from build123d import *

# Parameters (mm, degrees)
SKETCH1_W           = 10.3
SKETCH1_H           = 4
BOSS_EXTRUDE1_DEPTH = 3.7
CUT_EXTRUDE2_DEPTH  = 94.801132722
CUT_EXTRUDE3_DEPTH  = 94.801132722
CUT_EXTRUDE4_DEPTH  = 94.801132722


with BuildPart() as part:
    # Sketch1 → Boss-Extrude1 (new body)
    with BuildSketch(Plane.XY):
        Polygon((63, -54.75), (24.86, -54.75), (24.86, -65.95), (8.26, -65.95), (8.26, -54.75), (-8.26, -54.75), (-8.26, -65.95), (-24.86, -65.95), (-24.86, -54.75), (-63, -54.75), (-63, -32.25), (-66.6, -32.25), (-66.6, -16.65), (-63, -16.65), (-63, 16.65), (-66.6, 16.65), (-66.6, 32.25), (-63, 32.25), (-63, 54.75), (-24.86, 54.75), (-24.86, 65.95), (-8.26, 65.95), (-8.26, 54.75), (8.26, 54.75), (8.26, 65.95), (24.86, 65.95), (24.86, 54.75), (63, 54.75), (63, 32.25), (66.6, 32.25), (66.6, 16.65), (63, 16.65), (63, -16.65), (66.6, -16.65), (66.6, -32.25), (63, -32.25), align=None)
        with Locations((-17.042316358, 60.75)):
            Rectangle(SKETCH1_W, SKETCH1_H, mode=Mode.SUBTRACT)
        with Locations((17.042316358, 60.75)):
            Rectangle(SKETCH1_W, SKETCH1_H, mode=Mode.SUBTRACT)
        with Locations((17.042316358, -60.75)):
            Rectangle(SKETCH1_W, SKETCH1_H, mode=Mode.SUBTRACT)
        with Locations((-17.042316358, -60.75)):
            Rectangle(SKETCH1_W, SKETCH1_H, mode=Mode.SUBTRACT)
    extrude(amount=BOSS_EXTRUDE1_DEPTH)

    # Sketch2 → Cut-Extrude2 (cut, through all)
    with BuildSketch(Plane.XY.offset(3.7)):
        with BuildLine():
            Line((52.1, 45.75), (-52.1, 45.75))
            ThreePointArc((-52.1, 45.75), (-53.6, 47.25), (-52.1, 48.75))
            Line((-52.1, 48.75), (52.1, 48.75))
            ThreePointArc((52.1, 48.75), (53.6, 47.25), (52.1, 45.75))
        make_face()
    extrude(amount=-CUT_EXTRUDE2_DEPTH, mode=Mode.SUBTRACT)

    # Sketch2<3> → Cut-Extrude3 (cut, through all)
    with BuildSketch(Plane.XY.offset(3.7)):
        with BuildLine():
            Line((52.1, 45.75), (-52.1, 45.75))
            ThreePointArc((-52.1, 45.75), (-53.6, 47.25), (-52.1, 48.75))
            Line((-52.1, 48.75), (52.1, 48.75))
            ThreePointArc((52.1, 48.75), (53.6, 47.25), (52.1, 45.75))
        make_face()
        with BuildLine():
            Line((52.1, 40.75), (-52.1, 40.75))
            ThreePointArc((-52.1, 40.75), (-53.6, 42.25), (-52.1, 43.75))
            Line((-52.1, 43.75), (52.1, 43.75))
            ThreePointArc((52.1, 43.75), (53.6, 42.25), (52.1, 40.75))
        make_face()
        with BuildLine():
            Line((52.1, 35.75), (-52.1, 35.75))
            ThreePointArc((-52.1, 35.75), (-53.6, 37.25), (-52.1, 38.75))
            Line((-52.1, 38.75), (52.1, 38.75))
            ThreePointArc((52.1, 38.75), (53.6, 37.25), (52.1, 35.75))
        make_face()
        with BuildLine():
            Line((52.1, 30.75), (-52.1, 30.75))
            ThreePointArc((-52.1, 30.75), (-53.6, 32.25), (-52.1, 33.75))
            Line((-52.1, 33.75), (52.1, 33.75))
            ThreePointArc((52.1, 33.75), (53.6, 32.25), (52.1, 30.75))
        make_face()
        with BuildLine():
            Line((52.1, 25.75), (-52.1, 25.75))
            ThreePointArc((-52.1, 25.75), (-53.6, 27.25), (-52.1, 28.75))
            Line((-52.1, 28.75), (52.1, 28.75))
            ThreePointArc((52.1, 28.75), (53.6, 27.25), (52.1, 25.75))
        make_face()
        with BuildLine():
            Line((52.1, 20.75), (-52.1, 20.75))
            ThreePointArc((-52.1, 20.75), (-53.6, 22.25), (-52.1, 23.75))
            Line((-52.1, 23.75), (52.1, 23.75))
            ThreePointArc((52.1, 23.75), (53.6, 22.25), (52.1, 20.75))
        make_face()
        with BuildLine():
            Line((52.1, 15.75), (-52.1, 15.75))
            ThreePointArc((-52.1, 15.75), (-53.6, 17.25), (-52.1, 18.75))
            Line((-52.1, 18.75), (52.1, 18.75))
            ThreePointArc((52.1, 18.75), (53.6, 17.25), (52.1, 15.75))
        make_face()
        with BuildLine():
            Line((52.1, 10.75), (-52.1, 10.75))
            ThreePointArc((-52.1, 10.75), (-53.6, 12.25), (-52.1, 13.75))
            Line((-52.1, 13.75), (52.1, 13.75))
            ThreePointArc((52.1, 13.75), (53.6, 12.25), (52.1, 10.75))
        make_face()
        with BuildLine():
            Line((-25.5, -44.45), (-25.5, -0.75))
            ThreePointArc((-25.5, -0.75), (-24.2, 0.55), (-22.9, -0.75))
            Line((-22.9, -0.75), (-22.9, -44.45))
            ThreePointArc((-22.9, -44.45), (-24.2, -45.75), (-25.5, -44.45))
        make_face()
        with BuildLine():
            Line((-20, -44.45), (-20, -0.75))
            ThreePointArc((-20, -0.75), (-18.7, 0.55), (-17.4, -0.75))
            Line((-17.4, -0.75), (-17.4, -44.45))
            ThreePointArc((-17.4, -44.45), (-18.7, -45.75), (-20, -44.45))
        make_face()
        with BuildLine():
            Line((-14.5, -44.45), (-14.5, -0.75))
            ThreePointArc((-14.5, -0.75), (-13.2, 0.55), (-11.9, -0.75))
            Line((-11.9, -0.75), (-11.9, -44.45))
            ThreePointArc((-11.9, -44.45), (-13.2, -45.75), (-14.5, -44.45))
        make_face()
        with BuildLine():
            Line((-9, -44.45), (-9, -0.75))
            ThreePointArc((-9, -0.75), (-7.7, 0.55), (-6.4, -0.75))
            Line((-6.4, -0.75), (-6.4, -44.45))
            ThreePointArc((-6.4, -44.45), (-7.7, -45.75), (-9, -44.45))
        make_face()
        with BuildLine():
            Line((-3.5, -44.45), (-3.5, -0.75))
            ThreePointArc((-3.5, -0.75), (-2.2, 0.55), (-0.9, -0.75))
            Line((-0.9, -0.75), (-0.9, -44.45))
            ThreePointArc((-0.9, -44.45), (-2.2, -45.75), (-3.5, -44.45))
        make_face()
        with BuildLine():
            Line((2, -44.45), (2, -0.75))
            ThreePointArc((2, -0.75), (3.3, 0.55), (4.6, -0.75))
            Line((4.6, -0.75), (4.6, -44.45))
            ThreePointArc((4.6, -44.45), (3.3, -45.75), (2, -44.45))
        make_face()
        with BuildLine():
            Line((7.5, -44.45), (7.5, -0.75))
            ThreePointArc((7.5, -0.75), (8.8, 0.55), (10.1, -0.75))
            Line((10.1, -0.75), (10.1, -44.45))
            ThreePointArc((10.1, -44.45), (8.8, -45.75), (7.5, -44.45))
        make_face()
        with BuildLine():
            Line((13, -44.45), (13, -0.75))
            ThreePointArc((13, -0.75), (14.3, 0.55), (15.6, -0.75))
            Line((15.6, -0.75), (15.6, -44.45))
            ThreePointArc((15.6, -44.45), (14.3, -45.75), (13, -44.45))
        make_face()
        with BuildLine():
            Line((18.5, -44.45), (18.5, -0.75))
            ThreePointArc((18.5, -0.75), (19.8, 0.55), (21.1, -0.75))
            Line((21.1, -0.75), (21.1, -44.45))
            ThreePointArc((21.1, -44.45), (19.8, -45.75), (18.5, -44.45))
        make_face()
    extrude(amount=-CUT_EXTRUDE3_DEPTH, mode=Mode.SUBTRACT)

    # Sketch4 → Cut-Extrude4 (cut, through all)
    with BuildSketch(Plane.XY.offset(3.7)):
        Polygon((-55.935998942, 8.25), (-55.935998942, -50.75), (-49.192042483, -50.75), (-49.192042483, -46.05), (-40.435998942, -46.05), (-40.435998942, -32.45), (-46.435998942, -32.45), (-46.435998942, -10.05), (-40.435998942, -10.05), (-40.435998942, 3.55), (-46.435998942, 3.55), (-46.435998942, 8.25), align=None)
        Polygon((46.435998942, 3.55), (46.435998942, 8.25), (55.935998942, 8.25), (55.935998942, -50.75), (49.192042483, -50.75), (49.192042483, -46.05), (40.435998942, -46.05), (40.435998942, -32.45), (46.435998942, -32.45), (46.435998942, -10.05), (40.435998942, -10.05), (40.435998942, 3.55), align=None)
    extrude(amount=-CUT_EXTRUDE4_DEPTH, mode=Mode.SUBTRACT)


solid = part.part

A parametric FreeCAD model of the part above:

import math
import FreeCAD as App
import Part
import Sketcher


def add_polygon(sketch, points):
    """Adds a closed chain of lines whose ends are joined by coincident constraints."""
    first, n = sketch.GeometryCount, len(points)
    for a, b in zip(points, points[1:] + points[:1]):
        sketch.addGeometry(Part.LineSegment(App.Vector(*a, 0), App.Vector(*b, 0)), False)
    for i in range(n):
        sketch.addConstraint(Sketcher.Constraint("Coincident", first + i, 2, first + (i + 1) % n, 1))

doc = App.newDocument("Part")
body = doc.addObject("PartDesign::Body", "Body")

sketch1 = doc.addObject("Sketcher::SketchObject", "Sketch")
body.addObject(sketch1)
sketch1.AttachmentSupport = (doc.XY_Plane, [""])
sketch1.MapMode = "FlatFace"
add_polygon(sketch1, [(24.9, -54.8), (63, -54.8), (63, -32.2), (66.6, -32.2), (66.6, -16.6), (63, -16.6), (63, 16.6), (66.6, 16.6), (66.6, 32.2), (63, 32.2), (63, 54.8), (24.9, 54.8), (24.9, 66), (8.3, 66), (8.3, 54.8), (-8.3, 54.8), (-8.3, 66), (-24.9, 66), (-24.9, 54.8), (-63, 54.8), (-63, 32.2), (-66.6, 32.2), (-66.6, 16.6), (-63, 16.6), (-63, -16.6), (-66.6, -16.6), (-66.6, -32.2), (-63, -32.2), (-63, -54.8), (-24.9, -54.8), (-24.9, -66), (-8.3, -66), (-8.3, -54.8), (8.3, -54.8), (8.3, -66), (24.9, -66)])
add_polygon(sketch1, [(11.9, -62.8), (11.9, -58.8), (22.2, -58.8), (22.2, -62.8)])
add_polygon(sketch1, [(-22.2, -62.8), (-22.2, -58.8), (-11.9, -58.8), (-11.9, -62.8)])
add_polygon(sketch1, [(11.9, 58.8), (11.9, 62.8), (22.2, 62.8), (22.2, 58.8)])
add_polygon(sketch1, [(-22.2, 58.8), (-22.2, 62.8), (-11.9, 62.8), (-11.9, 58.8)])
sketch1.addConstraint([
    Sketcher.Constraint("Horizontal", 0),
    Sketcher.Constraint("Vertical", 1),
    Sketcher.Constraint("Horizontal", 2),
    Sketcher.Constraint("Vertical", 3),
    Sketcher.Constraint("Horizontal", 4),
    Sketcher.Constraint("Vertical", 5),
    Sketcher.Constraint("Horizontal", 6),
    Sketcher.Constraint("Vertical", 7),
    Sketcher.Constraint("Horizontal", 8),
    Sketcher.Constraint("Vertical", 9),
    Sketcher.Constraint("Horizontal", 10),
    Sketcher.Constraint("Vertical", 11),
    Sketcher.Constraint("Horizontal", 12),
    Sketcher.Constraint("Vertical", 13),
    Sketcher.Constraint("Horizontal", 14),
    Sketcher.Constraint("Vertical", 15),
    Sketcher.Constraint("Horizontal", 16),
    Sketcher.Constraint("Vertical", 17),
    Sketcher.Constraint("Horizontal", 18),
    Sketcher.Constraint("Vertical", 19),
    Sketcher.Constraint("Horizontal", 20),
    Sketcher.Constraint("Vertical", 21),
    Sketcher.Constraint("Horizontal", 22),
    Sketcher.Constraint("Vertical", 23),
    Sketcher.Constraint("Horizontal", 24),
    Sketcher.Constraint("Vertical", 25),
    Sketcher.Constraint("Horizontal", 26),
    Sketcher.Constraint("Vertical", 27),
    Sketcher.Constraint("Horizontal", 28),
    Sketcher.Constraint("Vertical", 29),
    Sketcher.Constraint("Horizontal", 30),
    Sketcher.Constraint("Vertical", 31),
    Sketcher.Constraint("Horizontal", 32),
    Sketcher.Constraint("Vertical", 33),
    Sketcher.Constraint("Horizontal", 34),
    Sketcher.Constraint("Vertical", 35),
    Sketcher.Constraint("Vertical", 36),
    Sketcher.Constraint("Horizontal", 37),
    Sketcher.Constraint("Vertical", 38),
    Sketcher.Constraint("Horizontal", 39),
    Sketcher.Constraint("Vertical", 40),
    Sketcher.Constraint("Horizontal", 41),
    Sketcher.Constraint("Vertical", 42),
    Sketcher.Constraint("Horizontal", 43),
    Sketcher.Constraint("Vertical", 44),
    Sketcher.Constraint("Horizontal", 45),
    Sketcher.Constraint("Vertical", 46),
    Sketcher.Constraint("Horizontal", 47),
    Sketcher.Constraint("Vertical", 48),
    Sketcher.Constraint("Horizontal", 49),
    Sketcher.Constraint("Vertical", 50),
    Sketcher.Constraint("Horizontal", 51),
    Sketcher.Constraint("Symmetric", 0, 2, 18, 2, -1, 1),
    Sketcher.Constraint("Symmetric", 2, 2, 20, 2, -1, 1),
    Sketcher.Constraint("Symmetric", 4, 2, 22, 2, -1, 1),
    Sketcher.Constraint("Symmetric", 6, 2, 24, 2, -1, 1),
    Sketcher.Constraint("Symmetric", 8, 2, 26, 2, -1, 1),
    Sketcher.Constraint("Symmetric", 10, 2, 28, 2, -1, 1),
    Sketcher.Constraint("Symmetric", 12, 2, 30, 2, -1, 1),
    Sketcher.Constraint("Symmetric", 14, 2, 32, 2, -1, 1),
    Sketcher.Constraint("Symmetric", 16, 2, 34, 2, -1, 1),
    Sketcher.Constraint("Symmetric", 42, 2, 44, 2, -1, 1),
    Sketcher.Constraint("Symmetric", 40, 2, 46, 2, -1, 1),
    Sketcher.Constraint("Symmetric", 38, 2, 48, 2, -1, 1),
    Sketcher.Constraint("Symmetric", 36, 2, 50, 2, -1, 1),
    Sketcher.Constraint("Symmetric", 12, 2, 15, 2, -2),
    Sketcher.Constraint("Symmetric", 10, 2, 17, 2, -2),
    Sketcher.Constraint("Symmetric", 8, 2, 19, 2, -2),
    Sketcher.Constraint("Symmetric", 6, 2, 21, 2, -2),
    Sketcher.Constraint("Symmetric", 37, 2, 40, 2, -2),
    Sketcher.Constraint("Symmetric", 39, 2, 42, 2, -2),
    Sketcher.Constraint("Horizontal", 10, 2, 13, 2),
    Sketcher.Constraint("Vertical", 1, 2, 4, 2),
    Sketcher.Constraint("DistanceY", 36, 1, 36, 2, 4.0),
    Sketcher.Constraint("DistanceX", 2, 1, 2, 2, 3.6),
    Sketcher.Constraint("DistanceX", 12, 2, 12, 1, 16.6),
    Sketcher.Constraint("DistanceX", 37, 1, 37, 2, 10.3),
    Sketcher.Constraint("DistanceY", 1, 1, 1, 2, 22.5),
    Sketcher.Constraint("DistanceY", 3, 1, 3, 2, 15.6),
    Sketcher.Constraint("DistanceY", 5, 1, 5, 2, 33.3),
    Sketcher.Constraint("DistanceY", 11, 1, 11, 2, 11.2),
    Sketcher.Constraint("DistanceX", -1, 1, 0, 2, 63.0),
    Sketcher.Constraint("DistanceY", 36, 2, 32, 2, 4.0),
    Sketcher.Constraint("DistanceX", 0, 1, 0, 2, 38.14),
    Sketcher.Constraint("DistanceX", -1, 1, 36, 2, 11.892316),
])
pad1 = doc.addObject("PartDesign::Pad", "Pad")
body.addObject(pad1)
pad1.Profile = sketch1
pad1.Length = 3.7

sketch2 = doc.addObject("Sketcher::SketchObject", "Sketch001")
body.addObject(sketch2)
sketch2.AttachmentSupport = (doc.XY_Plane, [""])
sketch2.MapMode = "FlatFace"
sketch2.AttachmentOffset = App.Placement(App.Vector(0, 0, 3.7), App.Rotation())
sketch2.addGeometry([
    Part.LineSegment(App.Vector(-52.1, 45.8, 0), App.Vector(52.1, 45.8, 0)),
    Part.ArcOfCircle(Part.Circle(App.Vector(52.1, 47.2, 0), App.Vector(0, 0, 1), 1.5), math.radians(-90), math.radians(90)),
    Part.LineSegment(App.Vector(52.1, 48.8, 0), App.Vector(-52.1, 48.8, 0)),
    Part.ArcOfCircle(Part.Circle(App.Vector(-52.1, 47.2, 0), App.Vector(0, 0, 1), 1.5), math.radians(90), math.radians(270)),
], False)
sketch2.addConstraint([
    Sketcher.Constraint("Tangent", 0, 2, 1, 1),
    Sketcher.Constraint("Tangent", 1, 2, 2, 1),
    Sketcher.Constraint("Tangent", 2, 2, 3, 1),
    Sketcher.Constraint("Tangent", 3, 2, 0, 1),
    Sketcher.Constraint("Horizontal", 0),
    Sketcher.Constraint("Horizontal", 2),
    Sketcher.Constraint("Radius", 1, 1.5),
    Sketcher.Constraint("DistanceX", 0, 1, 0, 2, 104.2),
    Sketcher.Constraint("DistanceX", -1, 1, 1, 3, 52.1),
    Sketcher.Constraint("DistanceY", -1, 1, 1, 3, 47.25),
])
pocket1 = doc.addObject("PartDesign::Pocket", "Pocket")
body.addObject(pocket1)
pocket1.Profile = sketch2
pocket1.Type = "ThroughAll"

sketch3 = doc.addObject("Sketcher::SketchObject", "Sketch002")
body.addObject(sketch3)
sketch3.AttachmentSupport = (doc.XY_Plane, [""])
sketch3.MapMode = "FlatFace"
sketch3.AttachmentOffset = App.Placement(App.Vector(0, 0, 3.7), App.Rotation())
sketch3.addGeometry([
    Part.LineSegment(App.Vector(-52.1, 45.8, 0), App.Vector(52.1, 45.8, 0)),
    Part.ArcOfCircle(Part.Circle(App.Vector(52.1, 47.2, 0), App.Vector(0, 0, 1), 1.5), math.radians(-90), math.radians(90)),
    Part.LineSegment(App.Vector(52.1, 48.8, 0), App.Vector(-52.1, 48.8, 0)),
    Part.ArcOfCircle(Part.Circle(App.Vector(-52.1, 47.2, 0), App.Vector(0, 0, 1), 1.5), math.radians(90), math.radians(270)),
    Part.LineSegment(App.Vector(-52.1, 40.8, 0), App.Vector(52.1, 40.8, 0)),
    Part.ArcOfCircle(Part.Circle(App.Vector(52.1, 42.2, 0), App.Vector(0, 0, 1), 1.5), math.radians(-90), math.radians(90)),
    Part.LineSegment(App.Vector(52.1, 43.8, 0), App.Vector(-52.1, 43.8, 0)),
    Part.ArcOfCircle(Part.Circle(App.Vector(-52.1, 42.2, 0), App.Vector(0, 0, 1), 1.5), math.radians(90), math.radians(270)),
    Part.LineSegment(App.Vector(-52.1, 35.8, 0), App.Vector(52.1, 35.8, 0)),
    Part.ArcOfCircle(Part.Circle(App.Vector(52.1, 37.2, 0), App.Vector(0, 0, 1), 1.5), math.radians(-90), math.radians(90)),
    Part.LineSegment(App.Vector(52.1, 38.8, 0), App.Vector(-52.1, 38.8, 0)),
    Part.ArcOfCircle(Part.Circle(App.Vector(-52.1, 37.2, 0), App.Vector(0, 0, 1), 1.5), math.radians(90), math.radians(270)),
    Part.LineSegment(App.Vector(-52.1, 30.8, 0), App.Vector(52.1, 30.8, 0)),
    Part.ArcOfCircle(Part.Circle(App.Vector(52.1, 32.2, 0), App.Vector(0, 0, 1), 1.5), math.radians(-90), math.radians(90)),
    Part.LineSegment(App.Vector(52.1, 33.8, 0), App.Vector(-52.1, 33.8, 0)),
    Part.ArcOfCircle(Part.Circle(App.Vector(-52.1, 32.2, 0), App.Vector(0, 0, 1), 1.5), math.radians(90), math.radians(270)),
    Part.LineSegment(App.Vector(-52.1, 25.8, 0), App.Vector(52.1, 25.8, 0)),
    Part.ArcOfCircle(Part.Circle(App.Vector(52.1, 27.2, 0), App.Vector(0, 0, 1), 1.5), math.radians(-90), math.radians(90)),
    Part.LineSegment(App.Vector(52.1, 28.8, 0), App.Vector(-52.1, 28.8, 0)),
    Part.ArcOfCircle(Part.Circle(App.Vector(-52.1, 27.2, 0), App.Vector(0, 0, 1), 1.5), math.radians(90), math.radians(270)),
    Part.LineSegment(App.Vector(-52.1, 20.8, 0), App.Vector(52.1, 20.8, 0)),
    Part.ArcOfCircle(Part.Circle(App.Vector(52.1, 22.2, 0), App.Vector(0, 0, 1), 1.5), math.radians(-90), math.radians(90)),
    Part.LineSegment(App.Vector(52.1, 23.8, 0), App.Vector(-52.1, 23.8, 0)),
    Part.ArcOfCircle(Part.Circle(App.Vector(-52.1, 22.2, 0), App.Vector(0, 0, 1), 1.5), math.radians(90), math.radians(270)),
    Part.LineSegment(App.Vector(-52.1, 15.8, 0), App.Vector(52.1, 15.8, 0)),
    Part.ArcOfCircle(Part.Circle(App.Vector(52.1, 17.2, 0), App.Vector(0, 0, 1), 1.5), math.radians(-90), math.radians(90)),
    Part.LineSegment(App.Vector(52.1, 18.8, 0), App.Vector(-52.1, 18.8, 0)),
    Part.ArcOfCircle(Part.Circle(App.Vector(-52.1, 17.2, 0), App.Vector(0, 0, 1), 1.5), math.radians(90), math.radians(270)),
    Part.LineSegment(App.Vector(-52.1, 10.8, 0), App.Vector(52.1, 10.8, 0)),
    Part.ArcOfCircle(Part.Circle(App.Vector(52.1, 12.2, 0), App.Vector(0, 0, 1), 1.5), math.radians(-90), math.radians(90)),
    Part.LineSegment(App.Vector(52.1, 13.8, 0), App.Vector(-52.1, 13.8, 0)),
    Part.ArcOfCircle(Part.Circle(App.Vector(-52.1, 12.2, 0), App.Vector(0, 0, 1), 1.5), math.radians(90), math.radians(270)),
    Part.LineSegment(App.Vector(-25.5, -0.8, 0), App.Vector(-25.5, -44.5, 0)),
    Part.ArcOfCircle(Part.Circle(App.Vector(-24.2, -44.5, 0), App.Vector(0, 0, 1), 1.3), math.radians(180), math.radians(360)),
    Part.LineSegment(App.Vector(-22.9, -44.5, 0), App.Vector(-22.9, -0.8, 0)),
    Part.ArcOfCircle(Part.Circle(App.Vector(-24.2, -0.8, 0), App.Vector(0, 0, 1), 1.3), math.radians(0), math.radians(180)),
    Part.LineSegment(App.Vector(-20, -0.8, 0), App.Vector(-20, -44.5, 0)),
    Part.ArcOfCircle(Part.Circle(App.Vector(-18.7, -44.5, 0), App.Vector(0, 0, 1), 1.3), math.radians(180), math.radians(360)),
    Part.LineSegment(App.Vector(-17.4, -44.5, 0), App.Vector(-17.4, -0.8, 0)),
    Part.ArcOfCircle(Part.Circle(App.Vector(-18.7, -0.8, 0), App.Vector(0, 0, 1), 1.3), math.radians(0), math.radians(180)),
    Part.LineSegment(App.Vector(-14.5, -0.8, 0), App.Vector(-14.5, -44.5, 0)),
    Part.ArcOfCircle(Part.Circle(App.Vector(-13.2, -44.5, 0), App.Vector(0, 0, 1), 1.3), math.radians(180), math.radians(360)),
    Part.LineSegment(App.Vector(-11.9, -44.5, 0), App.Vector(-11.9, -0.8, 0)),
    Part.ArcOfCircle(Part.Circle(App.Vector(-13.2, -0.8, 0), App.Vector(0, 0, 1), 1.3), math.radians(0), math.radians(180)),
    Part.LineSegment(App.Vector(-9, -0.8, 0), App.Vector(-9, -44.5, 0)),
    Part.ArcOfCircle(Part.Circle(App.Vector(-7.7, -44.5, 0), App.Vector(0, 0, 1), 1.3), math.radians(180), math.radians(360)),
    Part.LineSegment(App.Vector(-6.4, -44.5, 0), App.Vector(-6.4, -0.8, 0)),
    Part.ArcOfCircle(Part.Circle(App.Vector(-7.7, -0.8, 0), App.Vector(0, 0, 1), 1.3), math.radians(0), math.radians(180)),
    Part.LineSegment(App.Vector(-3.5, -0.8, 0), App.Vector(-3.5, -44.5, 0)),
    Part.ArcOfCircle(Part.Circle(App.Vector(-2.2, -44.5, 0), App.Vector(0, 0, 1), 1.3), math.radians(180), math.radians(360)),
    Part.LineSegment(App.Vector(-0.9, -44.5, 0), App.Vector(-0.9, -0.8, 0)),
    Part.ArcOfCircle(Part.Circle(App.Vector(-2.2, -0.8, 0), App.Vector(0, 0, 1), 1.3), math.radians(0), math.radians(180)),
    Part.LineSegment(App.Vector(2, -0.8, 0), App.Vector(2, -44.5, 0)),
    Part.ArcOfCircle(Part.Circle(App.Vector(3.3, -44.5, 0), App.Vector(0, 0, 1), 1.3), math.radians(180), math.radians(360)),
    Part.LineSegment(App.Vector(4.6, -44.5, 0), App.Vector(4.6, -0.8, 0)),
    Part.ArcOfCircle(Part.Circle(App.Vector(3.3, -0.8, 0), App.Vector(0, 0, 1), 1.3), math.radians(0), math.radians(180)),
    Part.LineSegment(App.Vector(7.5, -0.8, 0), App.Vector(7.5, -44.5, 0)),
    Part.ArcOfCircle(Part.Circle(App.Vector(8.8, -44.5, 0), App.Vector(0, 0, 1), 1.3), math.radians(180), math.radians(360)),
    Part.LineSegment(App.Vector(10.1, -44.5, 0), App.Vector(10.1, -0.8, 0)),
    Part.ArcOfCircle(Part.Circle(App.Vector(8.8, -0.8, 0), App.Vector(0, 0, 1), 1.3), math.radians(0), math.radians(180)),
    Part.LineSegment(App.Vector(13, -0.8, 0), App.Vector(13, -44.5, 0)),
    Part.ArcOfCircle(Part.Circle(App.Vector(14.3, -44.5, 0), App.Vector(0, 0, 1), 1.3), math.radians(180), math.radians(360)),
    Part.LineSegment(App.Vector(15.6, -44.5, 0), App.Vector(15.6, -0.8, 0)),
    Part.ArcOfCircle(Part.Circle(App.Vector(14.3, -0.8, 0), App.Vector(0, 0, 1), 1.3), math.radians(0), math.radians(180)),
    Part.LineSegment(App.Vector(18.5, -0.8, 0), App.Vector(18.5, -44.5, 0)),
    Part.ArcOfCircle(Part.Circle(App.Vector(19.8, -44.5, 0), App.Vector(0, 0, 1), 1.3), math.radians(180), math.radians(360)),
    Part.LineSegment(App.Vector(21.1, -44.5, 0), App.Vector(21.1, -0.8, 0)),
    Part.ArcOfCircle(Part.Circle(App.Vector(19.8, -0.8, 0), App.Vector(0, 0, 1), 1.3), math.radians(0), math.radians(180)),
], False)
sketch3.addConstraint([
    Sketcher.Constraint("Tangent", 0, 2, 1, 1),
    Sketcher.Constraint("Tangent", 1, 2, 2, 1),
    Sketcher.Constraint("Tangent", 2, 2, 3, 1),
    Sketcher.Constraint("Tangent", 3, 2, 0, 1),
    Sketcher.Constraint("Tangent", 4, 2, 5, 1),
    Sketcher.Constraint("Tangent", 5, 2, 6, 1),
    Sketcher.Constraint("Tangent", 6, 2, 7, 1),
    Sketcher.Constraint("Tangent", 7, 2, 4, 1),
    Sketcher.Constraint("Tangent", 8, 2, 9, 1),
    Sketcher.Constraint("Tangent", 9, 2, 10, 1),
    Sketcher.Constraint("Tangent", 10, 2, 11, 1),
    Sketcher.Constraint("Tangent", 11, 2, 8, 1),
    Sketcher.Constraint("Tangent", 12, 2, 13, 1),
    Sketcher.Constraint("Tangent", 13, 2, 14, 1),
    Sketcher.Constraint("Tangent", 14, 2, 15, 1),
    Sketcher.Constraint("Tangent", 15, 2, 12, 1),
    Sketcher.Constraint("Tangent", 16, 2, 17, 1),
    Sketcher.Constraint("Tangent", 17, 2, 18, 1),
    Sketcher.Constraint("Tangent", 18, 2, 19, 1),
    Sketcher.Constraint("Tangent", 19, 2, 16, 1),
    Sketcher.Constraint("Tangent", 20, 2, 21, 1),
    Sketcher.Constraint("Tangent", 21, 2, 22, 1),
    Sketcher.Constraint("Tangent", 22, 2, 23, 1),
    Sketcher.Constraint("Tangent", 23, 2, 20, 1),
    Sketcher.Constraint("Tangent", 24, 2, 25, 1),
    Sketcher.Constraint("Tangent", 25, 2, 26, 1),
    Sketcher.Constraint("Tangent", 26, 2, 27, 1),
    Sketcher.Constraint("Tangent", 27, 2, 24, 1),
    Sketcher.Constraint("Tangent", 28, 2, 29, 1),
    Sketcher.Constraint("Tangent", 29, 2, 30, 1),
    Sketcher.Constraint("Tangent", 30, 2, 31, 1),
    Sketcher.Constraint("Tangent", 31, 2, 28, 1),
    Sketcher.Constraint("Tangent", 32, 2, 33, 1),
    Sketcher.Constraint("Tangent", 33, 2, 34, 1),
    Sketcher.Constraint("Tangent", 34, 2, 35, 1),
    Sketcher.Constraint("Tangent", 35, 2, 32, 1),
    Sketcher.Constraint("Tangent", 36, 2, 37, 1),
    Sketcher.Constraint("Tangent", 37, 2, 38, 1),
    Sketcher.Constraint("Tangent", 38, 2, 39, 1),
    Sketcher.Constraint("Tangent", 39, 2, 36, 1),
    Sketcher.Constraint("Tangent", 40, 2, 41, 1),
    Sketcher.Constraint("Tangent", 41, 2, 42, 1),
    Sketcher.Constraint("Tangent", 42, 2, 43, 1),
    Sketcher.Constraint("Tangent", 43, 2, 40, 1),
    Sketcher.Constraint("Tangent", 44, 2, 45, 1),
    Sketcher.Constraint("Tangent", 45, 2, 46, 1),
    Sketcher.Constraint("Tangent", 46, 2, 47, 1),
    Sketcher.Constraint("Tangent", 47, 2, 44, 1),
    Sketcher.Constraint("Tangent", 48, 2, 49, 1),
    Sketcher.Constraint("Tangent", 49, 2, 50, 1),
    Sketcher.Constraint("Tangent", 50, 2, 51, 1),
    Sketcher.Constraint("Tangent", 51, 2, 48, 1),
    Sketcher.Constraint("Tangent", 52, 2, 53, 1),
    Sketcher.Constraint("Tangent", 53, 2, 54, 1),
    Sketcher.Constraint("Tangent", 54, 2, 55, 1),
    Sketcher.Constraint("Tangent", 55, 2, 52, 1),
    Sketcher.Constraint("Tangent", 56, 2, 57, 1),
    Sketcher.Constraint("Tangent", 57, 2, 58, 1),
    Sketcher.Constraint("Tangent", 58, 2, 59, 1),
    Sketcher.Constraint("Tangent", 59, 2, 56, 1),
    Sketcher.Constraint("Tangent", 60, 2, 61, 1),
    Sketcher.Constraint("Tangent", 61, 2, 62, 1),
    Sketcher.Constraint("Tangent", 62, 2, 63, 1),
    Sketcher.Constraint("Tangent", 63, 2, 60, 1),
    Sketcher.Constraint("Tangent", 64, 2, 65, 1),
    Sketcher.Constraint("Tangent", 65, 2, 66, 1),
    Sketcher.Constraint("Tangent", 66, 2, 67, 1),
    Sketcher.Constraint("Tangent", 67, 2, 64, 1),
    Sketcher.Constraint("Horizontal", 0),
    Sketcher.Constraint("Horizontal", 2),
    Sketcher.Constraint("Horizontal", 4),
    Sketcher.Constraint("Horizontal", 6),
    Sketcher.Constraint("Horizontal", 8),
    Sketcher.Constraint("Horizontal", 10),
    Sketcher.Constraint("Horizontal", 12),
    Sketcher.Constraint("Horizontal", 14),
    Sketcher.Constraint("Horizontal", 16),
    Sketcher.Constraint("Horizontal", 18),
    Sketcher.Constraint("Horizontal", 20),
    Sketcher.Constraint("Horizontal", 22),
    Sketcher.Constraint("Horizontal", 24),
    Sketcher.Constraint("Horizontal", 26),
    Sketcher.Constraint("Horizontal", 28),
    Sketcher.Constraint("Horizontal", 30),
    Sketcher.Constraint("Vertical", 32),
    Sketcher.Constraint("Vertical", 34),
    Sketcher.Constraint("Vertical", 36),
    Sketcher.Constraint("Vertical", 38),
    Sketcher.Constraint("Vertical", 40),
    Sketcher.Constraint("Vertical", 42),
    Sketcher.Constraint("Vertical", 44),
    Sketcher.Constraint("Vertical", 46),
    Sketcher.Constraint("Vertical", 48),
    Sketcher.Constraint("Vertical", 50),
    Sketcher.Constraint("Vertical", 52),
    Sketcher.Constraint("Vertical", 54),
    Sketcher.Constraint("Vertical", 56),
    Sketcher.Constraint("Vertical", 58),
    Sketcher.Constraint("Vertical", 60),
    Sketcher.Constraint("Vertical", 62),
    Sketcher.Constraint("Vertical", 64),
    Sketcher.Constraint("Vertical", 66),
    Sketcher.Constraint("Equal", 3, 5),
    Sketcher.Constraint("Equal", 7, 9),
    Sketcher.Constraint("Equal", 11, 13),
    Sketcher.Constraint("Equal", 15, 17),
    Sketcher.Constraint("Equal", 19, 21),
    Sketcher.Constraint("Equal", 23, 25),
    Sketcher.Constraint("Equal", 27, 29),
    Sketcher.Constraint("Equal", 35, 37),
    Sketcher.Constraint("Equal", 39, 41),
    Sketcher.Constraint("Equal", 43, 45),
    Sketcher.Constraint("Equal", 47, 49),
    Sketcher.Constraint("Equal", 51, 53),
    Sketcher.Constraint("Equal", 55, 57),
    Sketcher.Constraint("Equal", 59, 61),
    Sketcher.Constraint("Equal", 63, 65),
    Sketcher.Constraint("Horizontal", 33, 3, 37, 3),
    Sketcher.Constraint("Horizontal", 35, 3, 39, 3),
    Sketcher.Constraint("Horizontal", 37, 3, 41, 3),
    Sketcher.Constraint("Horizontal", 39, 3, 43, 3),
    Sketcher.Constraint("Horizontal", 41, 3, 45, 3),
    Sketcher.Constraint("Horizontal", 43, 3, 47, 3),
    Sketcher.Constraint("Horizontal", 45, 3, 49, 3),
    Sketcher.Constraint("Horizontal", 47, 3, 51, 3),
    Sketcher.Constraint("Horizontal", 49, 3, 53, 3),
    Sketcher.Constraint("Horizontal", 51, 3, 55, 3),
    Sketcher.Constraint("Horizontal", 53, 3, 57, 3),
    Sketcher.Constraint("Horizontal", 55, 3, 59, 3),
    Sketcher.Constraint("Horizontal", 57, 3, 61, 3),
    Sketcher.Constraint("Horizontal", 59, 3, 63, 3),
    Sketcher.Constraint("Horizontal", 61, 3, 65, 3),
    Sketcher.Constraint("Horizontal", 63, 3, 67, 3),
    Sketcher.Constraint("Vertical", 1, 3, 5, 3),
    Sketcher.Constraint("Vertical", 3, 3, 7, 3),
    Sketcher.Constraint("Vertical", 5, 3, 9, 3),
    Sketcher.Constraint("Vertical", 7, 3, 11, 3),
    Sketcher.Constraint("Vertical", 9, 3, 13, 3),
    Sketcher.Constraint("Vertical", 11, 3, 15, 3),
    Sketcher.Constraint("Vertical", 13, 3, 17, 3),
    Sketcher.Constraint("Vertical", 15, 3, 19, 3),
    Sketcher.Constraint("Vertical", 17, 3, 21, 3),
    Sketcher.Constraint("Vertical", 19, 3, 23, 3),
    Sketcher.Constraint("Vertical", 21, 3, 25, 3),
    Sketcher.Constraint("Vertical", 23, 3, 27, 3),
    Sketcher.Constraint("Vertical", 25, 3, 29, 3),
    Sketcher.Constraint("Vertical", 27, 3, 31, 3),
    Sketcher.Constraint("Radius", 1, 1.5),
    Sketcher.Constraint("Radius", 33, 1.3),
    Sketcher.Constraint("DistanceX", 0, 1, 0, 2, 104.2),
    Sketcher.Constraint("DistanceY", 32, 2, 32, 1, 43.7),
    Sketcher.Constraint("DistanceX", 36, 2, -1, 1, 20.0),
    Sketcher.Constraint("DistanceX", 44, 2, -1, 1, 9.0),
    Sketcher.Constraint("DistanceX", -1, 1, 52, 2, 2.0),
    Sketcher.Constraint("DistanceX", -1, 1, 60, 2, 13.0),
    Sketcher.Constraint("DistanceX", -1, 1, 1, 3, 52.1),
    Sketcher.Constraint("DistanceX", 33, 3, -1, 1, 24.2),
    Sketcher.Constraint("DistanceX", 41, 3, -1, 1, 13.2),
    Sketcher.Constraint("DistanceX", 49, 3, -1, 1, 2.2),
    Sketcher.Constraint("DistanceX", -1, 1, 57, 3, 8.8),
    Sketcher.Constraint("DistanceX", -1, 1, 65, 3, 19.8),
    Sketcher.Constraint("DistanceY", -1, 1, 1, 3, 47.25),
    Sketcher.Constraint("DistanceY", -1, 1, 5, 3, 42.25),
    Sketcher.Constraint("DistanceY", -1, 1, 9, 3, 37.25),
    Sketcher.Constraint("DistanceY", -1, 1, 13, 3, 32.25),
    Sketcher.Constraint("DistanceY", -1, 1, 17, 3, 27.25),
    Sketcher.Constraint("DistanceY", -1, 1, 21, 3, 22.25),
    Sketcher.Constraint("DistanceY", -1, 1, 25, 3, 17.25),
    Sketcher.Constraint("DistanceY", -1, 1, 29, 3, 12.25),
    Sketcher.Constraint("DistanceY", 33, 3, -1, 1, 44.45),
])
pocket2 = doc.addObject("PartDesign::Pocket", "Pocket001")
body.addObject(pocket2)
pocket2.Profile = sketch3
pocket2.Type = "ThroughAll"

sketch4 = doc.addObject("Sketcher::SketchObject", "Sketch003")
body.addObject(sketch4)
sketch4.AttachmentSupport = (doc.XY_Plane, [""])
sketch4.MapMode = "FlatFace"
sketch4.AttachmentOffset = App.Placement(App.Vector(0, 0, 3.7), App.Rotation())
add_polygon(sketch4, [(-55.9, 8.2), (-55.9, -50.8), (-49.2, -50.8), (-49.2, -46), (-40.4, -46), (-40.4, -32.5), (-46.4, -32.5), (-46.4, -10.1), (-40.4, -10.1), (-40.4, 3.5), (-46.4, 3.5), (-46.4, 8.2)])
add_polygon(sketch4, [(46.4, 8.2), (46.4, 3.5), (40.4, 3.5), (40.4, -10.1), (46.4, -10.1), (46.4, -32.5), (40.4, -32.5), (40.4, -46), (49.2, -46), (49.2, -50.8), (55.9, -50.8), (55.9, 8.2)])
sketch4.addConstraint([
    Sketcher.Constraint("Vertical", 0),
    Sketcher.Constraint("Horizontal", 1),
    Sketcher.Constraint("Vertical", 2),
    Sketcher.Constraint("Horizontal", 3),
    Sketcher.Constraint("Vertical", 4),
    Sketcher.Constraint("Horizontal", 5),
    Sketcher.Constraint("Vertical", 6),
    Sketcher.Constraint("Horizontal", 7),
    Sketcher.Constraint("Vertical", 8),
    Sketcher.Constraint("Horizontal", 9),
    Sketcher.Constraint("Vertical", 10),
    Sketcher.Constraint("Horizontal", 11),
    Sketcher.Constraint("Vertical", 12),
    Sketcher.Constraint("Horizontal", 13),
    Sketcher.Constraint("Vertical", 14),
    Sketcher.Constraint("Horizontal", 15),
    Sketcher.Constraint("Vertical", 16),
    Sketcher.Constraint("Horizontal", 17),
    Sketcher.Constraint("Vertical", 18),
    Sketcher.Constraint("Horizontal", 19),
    Sketcher.Constraint("Vertical", 20),
    Sketcher.Constraint("Horizontal", 21),
    Sketcher.Constraint("Vertical", 22),
    Sketcher.Constraint("Horizontal", 23),
    Sketcher.Constraint("Symmetric", 9, 2, 12, 2, -2),
    Sketcher.Constraint("Symmetric", 7, 2, 14, 2, -2),
    Sketcher.Constraint("Symmetric", 5, 2, 16, 2, -2),
    Sketcher.Constraint("Symmetric", 3, 2, 18, 2, -2),
    Sketcher.Constraint("Symmetric", 1, 2, 20, 2, -2),
    Sketcher.Constraint("Symmetric", 11, 2, 22, 2, -2),
    Sketcher.Constraint("Vertical", 4, 2, 7, 2),
    Sketcher.Constraint("Vertical", 6, 2, 9, 2),
    Sketcher.Constraint("Equal", 4, 8),
    Sketcher.Constraint("Equal", 2, 10),
    Sketcher.Constraint("DistanceX", 5, 2, 5, 1, 6.0),
    Sketcher.Constraint("DistanceY", 0, 2, 0, 1, 59.0),
    Sketcher.Constraint("DistanceX", 11, 2, 11, 1, 9.5),
    Sketcher.Constraint("DistanceY", 2, 1, 2, 2, 4.7),
    Sketcher.Constraint("DistanceY", 4, 1, 4, 2, 13.6),
    Sketcher.Constraint("DistanceY", 0, 2, -1, 1, 50.75),
    Sketcher.Constraint("DistanceX", 0, 2, -1, 1, 55.935999),
    Sketcher.Constraint("DistanceX", 1, 1, 1, 2, 6.743956),
])
pocket3 = doc.addObject("PartDesign::Pocket", "Pocket002")
body.addObject(pocket3)
pocket3.Profile = sketch4
pocket3.Type = "ThroughAll"

doc.recompute()
